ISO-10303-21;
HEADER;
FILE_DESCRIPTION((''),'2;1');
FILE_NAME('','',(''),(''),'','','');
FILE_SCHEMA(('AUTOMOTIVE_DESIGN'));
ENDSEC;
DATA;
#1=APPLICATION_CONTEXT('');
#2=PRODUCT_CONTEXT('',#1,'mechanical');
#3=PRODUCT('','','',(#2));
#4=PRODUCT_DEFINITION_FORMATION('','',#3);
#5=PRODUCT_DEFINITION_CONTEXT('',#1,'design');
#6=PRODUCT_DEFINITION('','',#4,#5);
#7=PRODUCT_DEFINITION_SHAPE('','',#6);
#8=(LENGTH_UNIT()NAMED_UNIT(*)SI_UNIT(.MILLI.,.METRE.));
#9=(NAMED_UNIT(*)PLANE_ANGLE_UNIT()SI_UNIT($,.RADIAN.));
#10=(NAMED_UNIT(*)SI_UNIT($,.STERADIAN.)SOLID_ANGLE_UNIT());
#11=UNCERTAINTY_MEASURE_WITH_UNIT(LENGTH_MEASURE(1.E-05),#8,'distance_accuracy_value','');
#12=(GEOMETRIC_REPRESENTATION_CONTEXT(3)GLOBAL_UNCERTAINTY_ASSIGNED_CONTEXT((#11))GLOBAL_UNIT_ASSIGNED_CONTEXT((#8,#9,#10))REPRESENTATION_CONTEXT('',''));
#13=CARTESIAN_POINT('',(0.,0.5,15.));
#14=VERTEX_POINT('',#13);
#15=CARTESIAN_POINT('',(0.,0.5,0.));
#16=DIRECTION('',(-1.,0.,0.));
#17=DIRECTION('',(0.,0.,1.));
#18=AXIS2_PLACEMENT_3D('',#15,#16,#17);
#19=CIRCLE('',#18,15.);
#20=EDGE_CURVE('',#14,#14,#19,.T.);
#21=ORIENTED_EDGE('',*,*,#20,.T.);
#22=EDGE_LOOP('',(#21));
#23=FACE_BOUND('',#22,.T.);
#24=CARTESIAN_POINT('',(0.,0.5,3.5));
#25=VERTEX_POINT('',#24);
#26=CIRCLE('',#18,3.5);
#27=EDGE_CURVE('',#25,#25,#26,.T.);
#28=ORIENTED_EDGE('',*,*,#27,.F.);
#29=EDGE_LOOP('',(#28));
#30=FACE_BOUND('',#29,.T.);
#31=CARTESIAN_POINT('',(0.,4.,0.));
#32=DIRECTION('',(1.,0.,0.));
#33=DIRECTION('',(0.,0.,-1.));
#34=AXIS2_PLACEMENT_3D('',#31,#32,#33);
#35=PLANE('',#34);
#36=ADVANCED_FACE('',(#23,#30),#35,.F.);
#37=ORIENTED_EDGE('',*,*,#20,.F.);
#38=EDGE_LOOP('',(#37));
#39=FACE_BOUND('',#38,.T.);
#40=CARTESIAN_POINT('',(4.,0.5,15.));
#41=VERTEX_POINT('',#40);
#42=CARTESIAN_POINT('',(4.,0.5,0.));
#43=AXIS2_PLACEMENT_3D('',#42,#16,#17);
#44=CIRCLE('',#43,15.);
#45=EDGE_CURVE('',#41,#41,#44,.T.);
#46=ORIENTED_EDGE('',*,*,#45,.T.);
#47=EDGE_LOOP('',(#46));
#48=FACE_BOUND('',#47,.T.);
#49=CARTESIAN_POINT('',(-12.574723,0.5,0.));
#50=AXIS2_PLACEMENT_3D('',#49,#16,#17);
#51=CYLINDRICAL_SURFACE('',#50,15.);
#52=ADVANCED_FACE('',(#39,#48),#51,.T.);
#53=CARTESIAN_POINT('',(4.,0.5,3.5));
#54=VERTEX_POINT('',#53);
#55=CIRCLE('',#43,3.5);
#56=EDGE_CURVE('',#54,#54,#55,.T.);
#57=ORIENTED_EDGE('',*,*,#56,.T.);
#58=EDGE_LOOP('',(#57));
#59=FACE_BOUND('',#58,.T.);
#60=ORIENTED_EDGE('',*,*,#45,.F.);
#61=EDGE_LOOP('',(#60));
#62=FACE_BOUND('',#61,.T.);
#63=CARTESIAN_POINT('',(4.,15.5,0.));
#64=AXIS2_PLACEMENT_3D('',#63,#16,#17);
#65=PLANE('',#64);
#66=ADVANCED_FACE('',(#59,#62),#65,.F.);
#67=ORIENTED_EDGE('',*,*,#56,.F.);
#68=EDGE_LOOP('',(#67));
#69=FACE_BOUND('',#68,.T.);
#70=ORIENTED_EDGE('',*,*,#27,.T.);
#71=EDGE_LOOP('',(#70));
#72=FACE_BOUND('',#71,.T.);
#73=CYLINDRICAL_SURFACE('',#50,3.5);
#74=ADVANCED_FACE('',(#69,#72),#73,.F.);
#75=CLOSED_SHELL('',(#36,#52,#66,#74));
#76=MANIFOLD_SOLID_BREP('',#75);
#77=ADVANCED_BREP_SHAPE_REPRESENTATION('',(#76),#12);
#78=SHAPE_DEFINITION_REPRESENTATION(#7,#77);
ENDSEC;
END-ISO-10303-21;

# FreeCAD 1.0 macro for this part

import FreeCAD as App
import Part
import Sketcher


def add_polygon(sketch, points):
    """Adds a closed chain of lines whose ends are joined by coincident constraints."""
    first, n = sketch.GeometryCount, len(points)
    for a, b in zip(points, points[1:] + points[:1]):
        sketch.addGeometry(Part.LineSegment(App.Vector(*a, 0), App.Vector(*b, 0)), False)
    for i in range(n):
        sketch.addConstraint(Sketcher.Constraint("Coincident", first + i, 2, first + (i + 1) % n, 1))

doc = App.newDocument("Part")
params = doc.addObject("Spreadsheet::Sheet", "Params")
for row, (alias, value) in enumerate([
    ("sketch1_width", "4 mm"),
    ("sketch1_height", "11.5 mm"),
    ("revolution_angle", "360 deg"),
], start=1):
    params.set(f"A{row}", alias)
    params.set(f"B{row}", "=" + value)
    params.setAlias(f"B{row}", alias)

body = doc.addObject("PartDesign::Body", "Body")

# Sketch on XY plane
sketch1 = doc.addObject("Sketcher::SketchObject", "Sketch")
body.addObject(sketch1)
sketch1.AttachmentSupport = (doc.XY_Plane, [""])
sketch1.MapMode = "FlatFace"
add_polygon(sketch1, [(0, 15.5), (0, 4), (4, 4), (4, 15.5)])  # lines 0-3
sketch1.addGeometry(Part.LineSegment(App.Vector(0, 0.5, 0), App.Vector(4, 0.5, 0)), True)  # axis
sketch1.addConstraint([
    Sketcher.Constraint("Vertical", 0),
    Sketcher.Constraint("Horizontal", 1),
    Sketcher.Constraint("Vertical", 2),
    Sketcher.Constraint("Horizontal", 3),
    Sketcher.Constraint("Horizontal", 4),
    Sketcher.Constraint("PointOnObject", 0, 2, -2),
    Sketcher.Constraint("PointOnObject", 4, 1, -2),
    Sketcher.Constraint("Vertical", 2, 2, 4, 2),
    Sketcher.Constraint("DistanceX", 1, 1, 1, 2, 4.0),
    Sketcher.Constraint("DistanceY", 0, 2, 0, 1, 11.5),
    Sketcher.Constraint("DistanceY", -1, 1, 0, 2, 4.0),
    Sketcher.Constraint("DistanceY", 4, 1, 3, 2, 15.0),
])
sketch1.setExpression("Constraints[12]", "Params.sketch1_width")
sketch1.setExpression("Constraints[13]", "Params.sketch1_height")
revolution = doc.addObject("PartDesign::Revolution", "Revolution")
body.addObject(revolution)
revolution.Profile = sketch1
revolution.ReferenceAxis = (sketch1, ["Axis0"])
revolution.setExpression("Angle", "Params.revolution_angle")

doc.recompute()
